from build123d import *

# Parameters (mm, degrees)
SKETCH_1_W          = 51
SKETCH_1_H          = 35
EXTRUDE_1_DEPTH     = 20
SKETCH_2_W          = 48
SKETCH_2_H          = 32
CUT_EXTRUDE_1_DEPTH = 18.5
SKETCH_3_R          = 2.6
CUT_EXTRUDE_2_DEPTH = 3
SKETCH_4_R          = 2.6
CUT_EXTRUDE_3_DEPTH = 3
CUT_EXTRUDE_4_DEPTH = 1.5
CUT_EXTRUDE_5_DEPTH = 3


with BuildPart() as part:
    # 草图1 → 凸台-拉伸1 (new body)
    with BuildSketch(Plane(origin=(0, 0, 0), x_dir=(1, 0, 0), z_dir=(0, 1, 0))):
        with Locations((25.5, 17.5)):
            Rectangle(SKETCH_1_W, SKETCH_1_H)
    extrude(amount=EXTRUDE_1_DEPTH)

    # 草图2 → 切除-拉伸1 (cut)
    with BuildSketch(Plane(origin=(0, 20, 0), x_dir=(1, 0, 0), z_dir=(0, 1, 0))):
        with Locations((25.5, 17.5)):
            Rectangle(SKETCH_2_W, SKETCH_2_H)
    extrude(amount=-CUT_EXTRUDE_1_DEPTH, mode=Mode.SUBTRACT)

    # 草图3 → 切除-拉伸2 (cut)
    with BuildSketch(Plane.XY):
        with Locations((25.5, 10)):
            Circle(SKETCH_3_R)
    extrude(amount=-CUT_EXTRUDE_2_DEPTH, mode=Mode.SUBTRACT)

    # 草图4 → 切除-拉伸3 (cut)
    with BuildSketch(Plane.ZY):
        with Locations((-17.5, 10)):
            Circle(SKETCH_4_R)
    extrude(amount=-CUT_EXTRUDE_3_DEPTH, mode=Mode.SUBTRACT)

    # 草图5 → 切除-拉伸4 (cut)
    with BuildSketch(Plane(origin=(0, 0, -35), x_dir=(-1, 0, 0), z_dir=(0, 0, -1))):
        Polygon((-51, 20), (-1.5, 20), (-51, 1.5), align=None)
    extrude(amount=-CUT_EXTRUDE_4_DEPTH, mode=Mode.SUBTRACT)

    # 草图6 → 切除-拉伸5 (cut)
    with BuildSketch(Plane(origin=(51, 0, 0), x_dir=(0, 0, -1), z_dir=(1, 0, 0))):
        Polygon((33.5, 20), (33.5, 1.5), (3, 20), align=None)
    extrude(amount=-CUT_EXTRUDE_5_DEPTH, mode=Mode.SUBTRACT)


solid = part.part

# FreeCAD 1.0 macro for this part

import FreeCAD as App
import Part
import Sketcher
from FreeCAD import Vector
Q = App.Units.Quantity


def add_polygon(sketch, points):
    """Adds a closed chain of lines whose ends are joined by coincident constraints."""
    first, n = sketch.GeometryCount, len(points)
    for a, b in zip(points, points[1:] + points[:1]):
        sketch.addGeometry(Part.LineSegment(App.Vector(*a, 0), App.Vector(*b, 0)), False)
    for i in range(n):
        sketch.addConstraint(Sketcher.Constraint("Coincident", first + i, 2, first + (i + 1) % n, 1))

doc = App.newDocument("Part")
body = doc.addObject("PartDesign::Body", "Body")

# Sketch on XZ plane
sketch1 = body.newObject("Sketcher::SketchObject", "Sketch")
sketch1.AttachmentSupport = (doc.getObject("XZ_Plane"), [""])
sketch1.MapMode = "FlatFace"
add_polygon(sketch1, [(0, -35), (0, 0), (51, 0), (51, -35)])  # lines 0-3
sketch1.addConstraint(Sketcher.Constraint("Vertical", 0))
sketch1.addConstraint(Sketcher.Constraint("Horizontal", 1))
sketch1.addConstraint(Sketcher.Constraint("Vertical", 2))
sketch1.addConstraint(Sketcher.Constraint("Horizontal", 3))
sketch1.addConstraint(Sketcher.Constraint("Coincident", 0, 2, -1, 1))
sketch1.addConstraint(Sketcher.Constraint("DistanceX", 1, 1, 1, 2, Q("51 mm")))
sketch1.addConstraint(Sketcher.Constraint("DistanceY", 0, 1, 0, 2, Q("35 mm")))
pad1 = body.newObject("PartDesign::Pad", "Pad")
pad1.Profile = sketch1
pad1.Length = 20
pad1.Reversed = True

# Sketch on XZ plane
sketch2 = body.newObject("Sketcher::SketchObject", "Sketch001")
sketch2.AttachmentSupport = (doc.getObject("XZ_Plane"), [""])
sketch2.MapMode = "FlatFace"
sketch2.AttachmentOffset = App.Placement(Vector(0, 0, -20), App.Rotation())
add_polygon(sketch2, [(1.5, -33.5), (1.5, -1.5), (49.5, -1.5), (49.5, -33.5)])  # lines 0-3
sketch2.addConstraint(Sketcher.Constraint("Vertical", 0))
sketch2.addConstraint(Sketcher.Constraint("Horizontal", 1))
sketch2.addConstraint(Sketcher.Constraint("Vertical", 2))
sketch2.addConstraint(Sketcher.Constraint("Horizontal", 3))
sketch2.addConstraint(Sketcher.Constraint("DistanceX", 1, 1, 1, 2, Q("48 mm")))
sketch2.addConstraint(Sketcher.Constraint("DistanceY", 0, 1, 0, 2, Q("32 mm")))
sketch2.addConstraint(Sketcher.Constraint("DistanceX", -1, 1, 0, 2, Q("1.5 mm")))
sketch2.addConstraint(Sketcher.Constraint("DistanceY", 0, 2, -1, 1, Q("1.5 mm")))
pocket1 = body.newObject("PartDesign::Pocket", "Pocket")
pocket1.Profile = sketch2
pocket1.Length = 18.5
pocket1.Reversed = True

# Sketch on XY plane
sketch3 = body.newObject("Sketcher::SketchObject", "Sketch002")
sketch3.AttachmentSupport = (doc.getObject("XY_Plane"), [""])
sketch3.MapMode = "FlatFace"
sketch3.addGeometry(Part.Circle(Vector(25.5, 10, 0), Vector(0, 0, 1), 2.6), False)
sketch3.addConstraint(Sketcher.Constraint("Diameter", 0, Q("5.2 mm")))
sketch3.addConstraint(Sketcher.Constraint("DistanceY", -1, 1, 0, 3, Q("10 mm")))
sketch3.addConstraint(Sketcher.Constraint("DistanceX", -1, 1, 0, 3, Q("25.5 mm")))
pocket2 = body.newObject("PartDesign::Pocket", "Pocket001")
pocket2.Profile = sketch3
pocket2.Length = 3

# Sketch on YZ plane
sketch4 = body.newObject("Sketcher::SketchObject", "Sketch003")
sketch4.AttachmentSupport = (doc.getObject("YZ_Plane"), [""])
sketch4.MapMode = "FlatFace"
sketch4.addGeometry(Part.Circle(Vector(10, -17.5, 0), Vector(0, 0, 1), 2.6), False)
sketch4.addConstraint(Sketcher.Constraint("Diameter", 0, Q("5.2 mm")))
sketch4.addConstraint(Sketcher.Constraint("DistanceX", -1, 1, 0, 3, Q("10 mm")))
sketch4.addConstraint(Sketcher.Constraint("DistanceY", 0, 3, -1, 1, Q("17.5 mm")))
pocket3 = body.newObject("PartDesign::Pocket", "Pocket002")
pocket3.Profile = sketch4
pocket3.Length = 3
pocket3.Reversed = True

# Sketch on XY plane
sketch5 = body.newObject("Sketcher::SketchObject", "Sketch004")
sketch5.AttachmentSupport = (doc.getObject("XY_Plane"), [""])
sketch5.MapMode = "FlatFace"
sketch5.AttachmentOffset = App.Placement(Vector(0, 0, -35), App.Rotation())
add_polygon(sketch5, [(1.5, 20), (51, 20), (51, 1.5)])  # lines 0-2
sketch5.addConstraint(Sketcher.Constraint("Horizontal", 0))
sketch5.addConstraint(Sketcher.Constraint("Vertical", 1))
sketch5.addConstraint(Sketcher.Constraint("DistanceX", 0, 1, 0, 2, Q("49.5 mm")))
sketch5.addConstraint(Sketcher.Constraint("DistanceY", 1, 2, 1, 1, Q("18.5 mm")))
sketch5.addConstraint(Sketcher.Constraint("DistanceX", -1, 1, 0, 2, Q("51 mm")))
sketch5.addConstraint(Sketcher.Constraint("DistanceY", -1, 1, 0, 2, Q("20 mm")))
pocket4 = body.newObject("PartDesign::Pocket", "Pocket003")
pocket4.Profile = sketch5
pocket4.Length = 1.5
pocket4.Reversed = True

# Sketch on YZ plane
sketch6 = body.newObject("Sketcher::SketchObject", "Sketch005")
sketch6.AttachmentSupport = (doc.getObject("YZ_Plane"), [""])
sketch6.MapMode = "FlatFace"
sketch6.AttachmentOffset = App.Placement(Vector(0, 0, 51), App.Rotation())
add_polygon(sketch6, [(1.5, -33.5), (20, -33.5), (20, -3)])  # lines 0-2
sketch6.addConstraint(Sketcher.Constraint("Horizontal", 0))
sketch6.addConstraint(Sketcher.Constraint("Vertical", 1))
sketch6.addConstraint(Sketcher.Constraint("DistanceX", 0, 1, 0, 2, Q("18.5 mm")))
sketch6.addConstraint(Sketcher.Constraint("DistanceY", 1, 1, 1, 2, Q("30.5 mm")))
sketch6.addConstraint(Sketcher.Constraint("DistanceX", -1, 1, 0, 2, Q("20 mm")))
sketch6.addConstraint(Sketcher.Constraint("DistanceY", 1, 2, -1, 1, Q("3 mm")))
pocket5 = body.newObject("PartDesign::Pocket", "Pocket004")
pocket5.Profile = sketch6
pocket5.Length = 3

doc.recompute()
